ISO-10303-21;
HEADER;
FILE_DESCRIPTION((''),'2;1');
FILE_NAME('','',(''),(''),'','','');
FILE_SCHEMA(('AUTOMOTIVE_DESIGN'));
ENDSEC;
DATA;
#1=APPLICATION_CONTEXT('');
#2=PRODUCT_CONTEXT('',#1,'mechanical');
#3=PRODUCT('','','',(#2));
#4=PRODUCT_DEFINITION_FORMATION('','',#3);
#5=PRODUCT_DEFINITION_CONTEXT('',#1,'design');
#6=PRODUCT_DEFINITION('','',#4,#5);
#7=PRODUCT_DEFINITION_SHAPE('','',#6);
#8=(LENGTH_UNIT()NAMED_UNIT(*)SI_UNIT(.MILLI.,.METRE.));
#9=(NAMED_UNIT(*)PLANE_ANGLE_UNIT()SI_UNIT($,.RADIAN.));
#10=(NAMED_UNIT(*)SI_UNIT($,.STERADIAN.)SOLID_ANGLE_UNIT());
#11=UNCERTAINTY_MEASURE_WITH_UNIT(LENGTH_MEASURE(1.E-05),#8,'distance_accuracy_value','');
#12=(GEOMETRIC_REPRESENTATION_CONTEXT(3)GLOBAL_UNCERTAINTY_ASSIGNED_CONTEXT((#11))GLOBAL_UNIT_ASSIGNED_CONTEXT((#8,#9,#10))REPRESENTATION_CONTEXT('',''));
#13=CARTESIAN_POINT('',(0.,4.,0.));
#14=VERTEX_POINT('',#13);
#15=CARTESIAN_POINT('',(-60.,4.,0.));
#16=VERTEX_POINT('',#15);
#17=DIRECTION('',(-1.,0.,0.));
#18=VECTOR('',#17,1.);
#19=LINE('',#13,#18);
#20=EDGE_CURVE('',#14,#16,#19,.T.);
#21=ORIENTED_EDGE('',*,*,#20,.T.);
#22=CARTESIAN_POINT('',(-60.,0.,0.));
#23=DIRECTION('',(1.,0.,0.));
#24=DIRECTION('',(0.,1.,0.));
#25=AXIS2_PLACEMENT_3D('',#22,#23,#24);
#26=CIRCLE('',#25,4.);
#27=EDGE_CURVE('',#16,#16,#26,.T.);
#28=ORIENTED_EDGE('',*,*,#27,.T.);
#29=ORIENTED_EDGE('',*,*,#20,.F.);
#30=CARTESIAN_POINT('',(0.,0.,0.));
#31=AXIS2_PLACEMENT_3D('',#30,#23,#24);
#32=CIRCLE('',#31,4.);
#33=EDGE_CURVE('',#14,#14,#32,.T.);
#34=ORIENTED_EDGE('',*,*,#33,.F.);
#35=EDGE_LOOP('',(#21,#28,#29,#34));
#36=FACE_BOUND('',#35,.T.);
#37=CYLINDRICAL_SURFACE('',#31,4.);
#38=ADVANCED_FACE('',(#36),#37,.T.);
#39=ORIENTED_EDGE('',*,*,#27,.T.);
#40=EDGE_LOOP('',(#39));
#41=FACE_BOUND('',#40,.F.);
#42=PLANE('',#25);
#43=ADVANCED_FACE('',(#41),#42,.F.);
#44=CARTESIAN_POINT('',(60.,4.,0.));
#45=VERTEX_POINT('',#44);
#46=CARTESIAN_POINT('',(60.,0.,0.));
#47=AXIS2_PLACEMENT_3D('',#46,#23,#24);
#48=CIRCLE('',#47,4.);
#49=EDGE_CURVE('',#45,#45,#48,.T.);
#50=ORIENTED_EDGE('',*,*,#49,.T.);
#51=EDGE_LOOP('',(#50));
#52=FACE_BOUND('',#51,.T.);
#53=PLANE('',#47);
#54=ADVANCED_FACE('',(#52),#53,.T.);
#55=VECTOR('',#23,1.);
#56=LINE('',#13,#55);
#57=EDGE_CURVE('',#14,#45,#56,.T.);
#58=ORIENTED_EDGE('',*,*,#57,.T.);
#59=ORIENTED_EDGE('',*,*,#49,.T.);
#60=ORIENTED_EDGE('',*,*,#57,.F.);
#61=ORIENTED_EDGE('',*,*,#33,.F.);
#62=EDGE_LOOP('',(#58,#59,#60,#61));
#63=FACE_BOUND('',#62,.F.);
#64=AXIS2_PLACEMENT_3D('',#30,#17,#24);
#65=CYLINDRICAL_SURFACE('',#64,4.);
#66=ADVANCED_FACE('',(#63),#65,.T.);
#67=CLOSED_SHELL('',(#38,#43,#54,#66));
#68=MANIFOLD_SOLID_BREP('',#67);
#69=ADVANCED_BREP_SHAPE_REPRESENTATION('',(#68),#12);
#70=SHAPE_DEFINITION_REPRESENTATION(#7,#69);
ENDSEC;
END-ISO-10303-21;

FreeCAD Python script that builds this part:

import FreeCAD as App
import Part
import Sketcher

doc = App.newDocument("Part")
body = doc.addObject("PartDesign::Body", "Body")

sketch1 = doc.addObject("Sketcher::SketchObject", "Sketch")
body.addObject(sketch1)
sketch1.AttachmentSupport = (doc.YZ_Plane, [""])
sketch1.MapMode = "FlatFace"
sketch1.addGeometry(Part.Circle(App.Vector(0, 0, 0), App.Vector(0, 0, 1), 4), False)
sketch1.addConstraint([
    Sketcher.Constraint("Coincident", 0, 3, -1, 1),
    Sketcher.Constraint("Diameter", 0, 8.0),
])
pad1 = doc.addObject("PartDesign::Pad", "Pad")
body.addObject(pad1)
pad1.Profile = sketch1
pad1.Length = 120
pad1.Midplane = True

doc.recompute()
